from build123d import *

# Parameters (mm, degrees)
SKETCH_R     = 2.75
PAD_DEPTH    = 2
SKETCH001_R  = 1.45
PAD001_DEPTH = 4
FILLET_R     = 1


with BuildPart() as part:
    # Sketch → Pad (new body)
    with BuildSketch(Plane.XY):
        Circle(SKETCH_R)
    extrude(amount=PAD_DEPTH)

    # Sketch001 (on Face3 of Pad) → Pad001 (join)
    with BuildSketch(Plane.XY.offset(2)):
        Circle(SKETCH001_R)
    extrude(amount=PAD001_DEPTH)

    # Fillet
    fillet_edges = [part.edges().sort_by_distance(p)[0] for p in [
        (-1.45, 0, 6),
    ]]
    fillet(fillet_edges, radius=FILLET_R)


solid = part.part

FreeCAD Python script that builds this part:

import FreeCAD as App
import Part
import Sketcher

V = App.Vector
Q = App.Units.Quantity


def edges_at(feature, points):
    """Names of the edges that pass closest to the given points."""
    edges = feature.Shape.Edges
    near = lambda p: min(range(len(edges)), key=lambda i: edges[i].distToShape(Part.Vertex(*p))[0])
    return sorted({f"Edge{near(p) + 1}" for p in points})

doc = App.newDocument("Part")
body = doc.addObject("PartDesign::Body", "Body")

sketch1 = body.newObject("Sketcher::SketchObject", "Sketch")
sketch1.AttachmentSupport = (doc.getObject("XY_Plane"), [""])
sketch1.MapMode = "FlatFace"
sketch1.addGeometry(Part.Circle(V(0, 0, 0), V(0, 0, 1), 2.8), False)
sketch1.addConstraint([
    Sketcher.Constraint("Coincident", 0, 3, -1, 1),
    Sketcher.Constraint("Diameter", 0, Q("5.5 mm")),
])
pad1 = body.newObject("PartDesign::Pad", "Pad")
pad1.Profile = sketch1
pad1.Length = 2

sketch2 = body.newObject("Sketcher::SketchObject", "Sketch001")
sketch2.AttachmentSupport = (doc.getObject("XY_Plane"), [""])
sketch2.MapMode = "FlatFace"
sketch2.AttachmentOffset = App.Placement(V(0, 0, 2), App.Rotation())
sketch2.addGeometry(Part.Circle(V(0, 0, 0), V(0, 0, 1), 1.4), False)
sketch2.addConstraint([
    Sketcher.Constraint("Coincident", 0, 3, -1, 1),
    Sketcher.Constraint("Diameter", 0, Q("2.9 mm")),
])
pad2 = body.newObject("PartDesign::Pad", "Pad001")
pad2.Profile = sketch2
pad2.Length = 4
doc.recompute()

fillet = body.newObject("PartDesign::Fillet", "Fillet")
fillet.Base = (pad2, edges_at(pad2, [(-1.45, 0, 6)]))
fillet.Radius = 1

doc.recompute()
